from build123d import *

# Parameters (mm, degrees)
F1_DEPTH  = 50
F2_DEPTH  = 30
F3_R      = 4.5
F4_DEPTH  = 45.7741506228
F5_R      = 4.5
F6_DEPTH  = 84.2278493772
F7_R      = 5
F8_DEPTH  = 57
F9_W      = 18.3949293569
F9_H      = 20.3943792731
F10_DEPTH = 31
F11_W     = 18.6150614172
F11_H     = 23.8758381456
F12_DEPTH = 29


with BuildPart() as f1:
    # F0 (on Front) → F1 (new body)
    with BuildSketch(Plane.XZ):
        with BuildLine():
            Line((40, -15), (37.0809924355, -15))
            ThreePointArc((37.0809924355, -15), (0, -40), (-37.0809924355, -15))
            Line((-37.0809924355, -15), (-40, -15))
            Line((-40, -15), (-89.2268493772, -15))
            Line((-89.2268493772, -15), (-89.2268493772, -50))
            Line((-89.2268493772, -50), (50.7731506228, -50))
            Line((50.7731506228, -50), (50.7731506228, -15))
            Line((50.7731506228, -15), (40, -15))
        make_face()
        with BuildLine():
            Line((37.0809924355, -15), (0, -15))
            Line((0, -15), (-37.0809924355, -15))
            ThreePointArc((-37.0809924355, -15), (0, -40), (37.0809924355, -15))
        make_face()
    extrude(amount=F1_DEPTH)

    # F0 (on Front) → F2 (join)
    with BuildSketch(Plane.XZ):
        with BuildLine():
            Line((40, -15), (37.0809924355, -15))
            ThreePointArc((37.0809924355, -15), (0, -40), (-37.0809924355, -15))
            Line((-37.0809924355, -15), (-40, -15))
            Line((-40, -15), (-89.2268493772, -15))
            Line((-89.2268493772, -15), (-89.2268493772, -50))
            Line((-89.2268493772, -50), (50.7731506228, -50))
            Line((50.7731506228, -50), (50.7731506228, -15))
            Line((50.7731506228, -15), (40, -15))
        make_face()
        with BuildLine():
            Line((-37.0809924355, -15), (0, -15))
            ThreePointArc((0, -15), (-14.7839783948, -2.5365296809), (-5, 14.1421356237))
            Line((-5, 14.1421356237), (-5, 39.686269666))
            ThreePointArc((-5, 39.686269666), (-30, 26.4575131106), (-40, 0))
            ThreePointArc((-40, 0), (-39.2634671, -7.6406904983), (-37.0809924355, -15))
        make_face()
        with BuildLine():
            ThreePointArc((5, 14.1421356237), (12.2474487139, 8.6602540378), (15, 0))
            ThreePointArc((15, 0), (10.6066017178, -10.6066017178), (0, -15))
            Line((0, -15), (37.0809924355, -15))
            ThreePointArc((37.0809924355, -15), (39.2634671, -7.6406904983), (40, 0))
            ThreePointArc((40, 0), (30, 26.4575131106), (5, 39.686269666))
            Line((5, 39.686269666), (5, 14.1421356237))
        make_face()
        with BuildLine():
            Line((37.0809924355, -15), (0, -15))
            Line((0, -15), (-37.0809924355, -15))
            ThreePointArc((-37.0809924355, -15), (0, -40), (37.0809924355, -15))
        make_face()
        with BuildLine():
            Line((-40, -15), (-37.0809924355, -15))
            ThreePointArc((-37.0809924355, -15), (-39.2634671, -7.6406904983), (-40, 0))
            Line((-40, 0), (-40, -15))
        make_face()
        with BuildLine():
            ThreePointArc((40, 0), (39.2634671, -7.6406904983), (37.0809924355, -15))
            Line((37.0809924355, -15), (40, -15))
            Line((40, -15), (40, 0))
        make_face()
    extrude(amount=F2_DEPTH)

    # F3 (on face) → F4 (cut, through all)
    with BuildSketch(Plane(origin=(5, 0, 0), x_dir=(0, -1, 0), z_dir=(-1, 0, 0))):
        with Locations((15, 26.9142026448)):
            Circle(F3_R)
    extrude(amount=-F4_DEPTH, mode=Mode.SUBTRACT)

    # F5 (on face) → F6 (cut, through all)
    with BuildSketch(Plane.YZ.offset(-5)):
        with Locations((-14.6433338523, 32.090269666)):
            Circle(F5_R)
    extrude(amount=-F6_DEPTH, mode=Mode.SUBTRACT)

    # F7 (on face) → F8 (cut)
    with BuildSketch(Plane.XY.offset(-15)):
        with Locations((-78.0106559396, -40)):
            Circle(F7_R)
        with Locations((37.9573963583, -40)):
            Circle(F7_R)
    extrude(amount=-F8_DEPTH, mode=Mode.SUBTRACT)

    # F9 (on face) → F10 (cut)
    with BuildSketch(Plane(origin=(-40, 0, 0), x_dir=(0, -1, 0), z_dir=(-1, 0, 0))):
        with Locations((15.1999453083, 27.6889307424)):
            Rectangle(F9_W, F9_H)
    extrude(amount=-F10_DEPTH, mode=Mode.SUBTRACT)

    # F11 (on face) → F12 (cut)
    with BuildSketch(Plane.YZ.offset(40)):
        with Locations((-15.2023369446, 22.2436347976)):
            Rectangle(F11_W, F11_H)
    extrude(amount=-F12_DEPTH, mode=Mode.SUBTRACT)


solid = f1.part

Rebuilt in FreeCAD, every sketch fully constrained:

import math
import FreeCAD as App
import Part
import Sketcher
from FreeCAD import Vector
Q = App.Units.Quantity

doc = App.newDocument("Part")
params = doc.addObject("Spreadsheet::Sheet", "Params")
for row, (alias, value) in enumerate([
    ("sketch1_width", "140 mm"),
    ("sketch1_height", "35 mm"),
    ("pad1_length", "50 mm"),
    ("sketch2_radius", "40 mm"),
    ("sketch2_radius2", "15 mm"),
    ("sketch2_width", "140 mm"),
    ("sketch2_height", "35 mm"),
    ("pad2_length", "30 mm"),
    ("sketch3_diameter", "9 mm"),
    ("sketch4_diameter", "9 mm"),
    ("sketch5_diameter", "10 mm"),
    ("pocket3_length", "57 mm"),
    ("pocket4_length", "31 mm"),
    ("pocket5_length", "29 mm"),
], start=1):
    params.set(f"A{row}", alias)
    params.set(f"B{row}", "=" + value)
    params.setAlias(f"B{row}", alias)

body = doc.addObject("PartDesign::Body", "Body")

sketch1 = body.newObject("Sketcher::SketchObject", "Sketch")
sketch1.AttachmentSupport = (doc.getObject("XZ_Plane"), [""])
sketch1.MapMode = "FlatFace"
sketch1.addGeometry([
    Part.LineSegment(Vector(-89, -15, 0), Vector(-89, -50, 0)),
    Part.LineSegment(Vector(-89, -50, 0), Vector(51, -50, 0)),
    Part.LineSegment(Vector(51, -50, 0), Vector(51, -15, 0)),
    Part.LineSegment(Vector(51, -15, 0), Vector(-89, -15, 0)),
], False)
sketch1.addConstraint([
    Sketcher.Constraint("Coincident", 0, 2, 1, 1),
    Sketcher.Constraint("Coincident", 1, 2, 2, 1),
    Sketcher.Constraint("Coincident", 2, 2, 3, 1),
    Sketcher.Constraint("Coincident", 3, 2, 0, 1),
    Sketcher.Constraint("Vertical", 0),
    Sketcher.Constraint("Horizontal", 1),
    Sketcher.Constraint("Vertical", 2),
    Sketcher.Constraint("Horizontal", 3),
    Sketcher.Constraint("DistanceX", 1, 1, 1, 2, Q("140 mm")),
    Sketcher.Constraint("DistanceY", 0, 2, 0, 1, Q("35 mm")),
    Sketcher.Constraint("DistanceY", 0, 2, -1, 1, Q("50 mm")),
    Sketcher.Constraint("DistanceX", 0, 2, -1, 1, Q("89.226849 mm")),
])
sketch1.setExpression("Constraints[8]", "Params.sketch1_width")
sketch1.setExpression("Constraints[9]", "Params.sketch1_height")
pad1 = body.newObject("PartDesign::Pad", "Pad")
pad1.Profile = sketch1
pad1.setExpression("Length", "Params.pad1_length")

sketch2 = body.newObject("Sketcher::SketchObject", "Sketch001")
sketch2.AttachmentSupport = (doc.getObject("XZ_Plane"), [""])
sketch2.MapMode = "FlatFace"
sketch2.addGeometry([
    Part.LineSegment(Vector(-40, -15, 0), Vector(-89, -15, 0)),
    Part.LineSegment(Vector(-89, -15, 0), Vector(-89, -50, 0)),
    Part.LineSegment(Vector(-89, -50, 0), Vector(51, -50, 0)),
    Part.LineSegment(Vector(51, -50, 0), Vector(51, -15, 0)),
    Part.LineSegment(Vector(51, -15, 0), Vector(40, -15, 0)),
    Part.LineSegment(Vector(40, -15, 0), Vector(40, 0, 0)),
    Part.ArcOfCircle(Part.Circle(Vector(0, 0, 0), Vector(0, 0, 1), 40), math.radians(0), math.radians(83)),
    Part.LineSegment(Vector(5, 40, 0), Vector(5, 14, 0)),
    Part.ArcOfCircle(Part.Circle(Vector(0, 0, 0), Vector(0, 0, 1), 15), math.radians(0), math.radians(71)),
    Part.ArcOfCircle(Part.Circle(Vector(0, 0, 0), Vector(0, 0, 1), 15), math.radians(-90), math.radians(0)),
    Part.ArcOfCircle(Part.Circle(Vector(0, 0, 0), Vector(0, 0, 1), 15), math.radians(109), math.radians(270)),
    Part.LineSegment(Vector(-5, 14, 0), Vector(-5, 40, 0)),
    Part.ArcOfCircle(Part.Circle(Vector(0, 0, 0), Vector(0, 0, 1), 40), math.radians(97), math.radians(180)),
    Part.LineSegment(Vector(-40, 0, 0), Vector(-40, -15, 0)),
], False)
sketch2.addConstraint([
    Sketcher.Constraint("Coincident", 0, 2, 1, 1),
    Sketcher.Constraint("Coincident", 1, 2, 2, 1),
    Sketcher.Constraint("Coincident", 2, 2, 3, 1),
    Sketcher.Constraint("Coincident", 3, 2, 4, 1),
    Sketcher.Constraint("Coincident", 4, 2, 5, 1),
    Sketcher.Constraint("Tangent", 5, 2, 6, 1),
    Sketcher.Constraint("Coincident", 6, 2, 7, 1),
    Sketcher.Constraint("Coincident", 7, 2, 8, 2),
    Sketcher.Constraint("Tangent", 8, 1, 9, 2),
    Sketcher.Constraint("Tangent", 9, 1, 10, 2),
    Sketcher.Constraint("Coincident", 10, 1, 11, 1),
    Sketcher.Constraint("Coincident", 11, 2, 12, 1),
    Sketcher.Constraint("Tangent", 12, 2, 13, 1),
    Sketcher.Constraint("Coincident", 13, 2, 0, 1),
    Sketcher.Constraint("Horizontal", 0),
    Sketcher.Constraint("Vertical", 1),
    Sketcher.Constraint("Horizontal", 2),
    Sketcher.Constraint("Vertical", 3),
    Sketcher.Constraint("Horizontal", 4),
    Sketcher.Constraint("Vertical", 5),
    Sketcher.Constraint("Vertical", 7),
    Sketcher.Constraint("Vertical", 11),
    Sketcher.Constraint("Vertical", 13),
    Sketcher.Constraint("Coincident", 6, 3, -1, 1),
    Sketcher.Constraint("Coincident", 8, 3, -1, 1),
    Sketcher.Constraint("Coincident", 10, 3, -1, 1),
    Sketcher.Constraint("Coincident", 12, 3, -1, 1),
    Sketcher.Constraint("Equal", 6, 12),
    Sketcher.Constraint("PointOnObject", 8, 1, -1),
    Sketcher.Constraint("PointOnObject", 9, 1, -2),
    Sketcher.Constraint("Horizontal", 0, 2, 3, 2),
    Sketcher.Constraint("Horizontal", 4, 2, 9, 1),
    Sketcher.Constraint("Horizontal", 7, 2, 10, 1),
    Sketcher.Constraint("Radius", 6, Q("40 mm")),
    Sketcher.Constraint("Radius", 8, Q("15 mm")),
    Sketcher.Constraint("DistanceX", 2, 1, 2, 2, Q("140 mm")),
    Sketcher.Constraint("DistanceY", 1, 2, 1, 1, Q("35 mm")),
    Sketcher.Constraint("DistanceX", -1, 1, 6, 2, Q("5 mm")),
    Sketcher.Constraint("DistanceX", 0, 2, 0, 1, Q("49.226849 mm")),
])
sketch2.setExpression("Constraints[33]", "Params.sketch2_radius")
sketch2.setExpression("Constraints[34]", "Params.sketch2_radius2")
sketch2.setExpression("Constraints[35]", "Params.sketch2_width")
sketch2.setExpression("Constraints[36]", "Params.sketch2_height")
pad2 = body.newObject("PartDesign::Pad", "Pad001")
pad2.Profile = sketch2
pad2.setExpression("Length", "Params.pad2_length")

sketch3 = body.newObject("Sketcher::SketchObject", "Sketch002")
sketch3.AttachmentSupport = (doc.getObject("YZ_Plane"), [""])
sketch3.MapMode = "FlatFace"
sketch3.AttachmentOffset = App.Placement(Vector(0, 0, 5), App.Rotation())
sketch3.addGeometry(Part.Circle(Vector(-15, 26.9, 0), Vector(0, 0, 1), 4.5), False)
sketch3.addConstraint([
    Sketcher.Constraint("Diameter", 0, Q("9 mm")),
    Sketcher.Constraint("DistanceX", 0, 3, -1, 1, Q("15 mm")),
    Sketcher.Constraint("DistanceY", -1, 1, 0, 3, Q("26.914203 mm")),
])
sketch3.setExpression("Constraints[0]", "Params.sketch3_diameter")
pocket1 = body.newObject("PartDesign::Pocket", "Pocket")
pocket1.Profile = sketch3
pocket1.Type = "ThroughAll"
pocket1.Reversed = True

sketch4 = body.newObject("Sketcher::SketchObject", "Sketch003")
sketch4.AttachmentSupport = (doc.getObject("YZ_Plane"), [""])
sketch4.MapMode = "FlatFace"
sketch4.AttachmentOffset = App.Placement(Vector(0, 0, -5), App.Rotation())
sketch4.addGeometry(Part.Circle(Vector(-14.6, 32.1, 0), Vector(0, 0, 1), 4.5), False)
sketch4.addConstraint([
    Sketcher.Constraint("Diameter", 0, Q("9 mm")),
    Sketcher.Constraint("DistanceY", -1, 1, 0, 3, Q("32.09027 mm")),
    Sketcher.Constraint("DistanceX", 0, 3, -1, 1, Q("14.643334 mm")),
])
sketch4.setExpression("Constraints[0]", "Params.sketch4_diameter")
pocket2 = body.newObject("PartDesign::Pocket", "Pocket001")
pocket2.Profile = sketch4
pocket2.Type = "ThroughAll"

sketch5 = body.newObject("Sketcher::SketchObject", "Sketch004")
sketch5.AttachmentSupport = (doc.getObject("XY_Plane"), [""])
sketch5.MapMode = "FlatFace"
sketch5.AttachmentOffset = App.Placement(Vector(0, 0, -15), App.Rotation())
sketch5.addGeometry([
    Part.Circle(Vector(-78, -40, 0), Vector(0, 0, 1), 5),
    Part.Circle(Vector(38, -40, 0), Vector(0, 0, 1), 5),
], False)
sketch5.addConstraint([
    Sketcher.Constraint("Equal", 0, 1),
    Sketcher.Constraint("Horizontal", 0, 3, 1, 3),
    Sketcher.Constraint("Diameter", 0, Q("10 mm")),
    Sketcher.Constraint("DistanceY", 0, 3, -1, 1, Q("40 mm")),
    Sketcher.Constraint("DistanceX", 0, 3, -1, 1, Q("78.010656 mm")),
    Sketcher.Constraint("DistanceX", -1, 1, 1, 3, Q("37.957396 mm")),
])
sketch5.setExpression("Constraints[2]", "Params.sketch5_diameter")
pocket3 = body.newObject("PartDesign::Pocket", "Pocket002")
pocket3.Profile = sketch5
pocket3.setExpression("Length", "Params.pocket3_length")

sketch6 = body.newObject("Sketcher::SketchObject", "Sketch005")
sketch6.AttachmentSupport = (doc.getObject("YZ_Plane"), [""])
sketch6.MapMode = "FlatFace"
sketch6.AttachmentOffset = App.Placement(Vector(0, 0, -40), App.Rotation())
sketch6.addGeometry([
    Part.LineSegment(Vector(-6, 38, 0), Vector(-6, 17, 0)),
    Part.LineSegment(Vector(-6, 17, 0), Vector(-24, 17, 0)),
    Part.LineSegment(Vector(-24, 17, 0), Vector(-24, 38, 0)),
    Part.LineSegment(Vector(-24, 38, 0), Vector(-6, 38, 0)),
], False)
sketch6.addConstraint([
    Sketcher.Constraint("Coincident", 0, 2, 1, 1),
    Sketcher.Constraint("Coincident", 1, 2, 2, 1),
    Sketcher.Constraint("Coincident", 2, 2, 3, 1),
    Sketcher.Constraint("Coincident", 3, 2, 0, 1),
    Sketcher.Constraint("Vertical", 0),
    Sketcher.Constraint("Horizontal", 1),
    Sketcher.Constraint("Vertical", 2),
    Sketcher.Constraint("Horizontal", 3),
    Sketcher.Constraint("DistanceX", 1, 2, 1, 1, Q("18.394929 mm")),
    Sketcher.Constraint("DistanceY", 0, 2, 0, 1, Q("20.394379 mm")),
    Sketcher.Constraint("DistanceX", 0, 2, -1, 1, Q("6.002481 mm")),
    Sketcher.Constraint("DistanceY", -1, 1, 0, 2, Q("17.491741 mm")),
])
pocket4 = body.newObject("PartDesign::Pocket", "Pocket003")
pocket4.Profile = sketch6
pocket4.setExpression("Length", "Params.pocket4_length")
pocket4.Reversed = True

sketch7 = body.newObject("Sketcher::SketchObject", "Sketch006")
sketch7.AttachmentSupport = (doc.getObject("YZ_Plane"), [""])
sketch7.MapMode = "FlatFace"
sketch7.AttachmentOffset = App.Placement(Vector(0, 0, 40), App.Rotation())
sketch7.addGeometry([
    Part.LineSegment(Vector(-25, 34, 0), Vector(-25, 10, 0)),
    Part.LineSegment(Vector(-25, 10, 0), Vector(-6, 10, 0)),
    Part.LineSegment(Vector(-6, 10, 0), Vector(-6, 34, 0)),
    Part.LineSegment(Vector(-6, 34, 0), Vector(-25, 34, 0)),
], False)
sketch7.addConstraint([
    Sketcher.Constraint("Coincident", 0, 2, 1, 1),
    Sketcher.Constraint("Coincident", 1, 2, 2, 1),
    Sketcher.Constraint("Coincident", 2, 2, 3, 1),
    Sketcher.Constraint("Coincident", 3, 2, 0, 1),
    Sketcher.Constraint("Vertical", 0),
    Sketcher.Constraint("Horizontal", 1),
    Sketcher.Constraint("Vertical", 2),
    Sketcher.Constraint("Horizontal", 3),
    Sketcher.Constraint("DistanceX", 1, 1, 1, 2, Q("18.615061 mm")),
    Sketcher.Constraint("DistanceY", 0, 2, 0, 1, Q("23.875838 mm")),
    Sketcher.Constraint("DistanceX", 0, 2, -1, 1, Q("24.509868 mm")),
    Sketcher.Constraint("DistanceY", -1, 1, 0, 2, Q("10.305716 mm")),
])
pocket5 = body.newObject("PartDesign::Pocket", "Pocket004")
pocket5.Profile = sketch7
pocket5.setExpression("Length", "Params.pocket5_length")

doc.recompute()
